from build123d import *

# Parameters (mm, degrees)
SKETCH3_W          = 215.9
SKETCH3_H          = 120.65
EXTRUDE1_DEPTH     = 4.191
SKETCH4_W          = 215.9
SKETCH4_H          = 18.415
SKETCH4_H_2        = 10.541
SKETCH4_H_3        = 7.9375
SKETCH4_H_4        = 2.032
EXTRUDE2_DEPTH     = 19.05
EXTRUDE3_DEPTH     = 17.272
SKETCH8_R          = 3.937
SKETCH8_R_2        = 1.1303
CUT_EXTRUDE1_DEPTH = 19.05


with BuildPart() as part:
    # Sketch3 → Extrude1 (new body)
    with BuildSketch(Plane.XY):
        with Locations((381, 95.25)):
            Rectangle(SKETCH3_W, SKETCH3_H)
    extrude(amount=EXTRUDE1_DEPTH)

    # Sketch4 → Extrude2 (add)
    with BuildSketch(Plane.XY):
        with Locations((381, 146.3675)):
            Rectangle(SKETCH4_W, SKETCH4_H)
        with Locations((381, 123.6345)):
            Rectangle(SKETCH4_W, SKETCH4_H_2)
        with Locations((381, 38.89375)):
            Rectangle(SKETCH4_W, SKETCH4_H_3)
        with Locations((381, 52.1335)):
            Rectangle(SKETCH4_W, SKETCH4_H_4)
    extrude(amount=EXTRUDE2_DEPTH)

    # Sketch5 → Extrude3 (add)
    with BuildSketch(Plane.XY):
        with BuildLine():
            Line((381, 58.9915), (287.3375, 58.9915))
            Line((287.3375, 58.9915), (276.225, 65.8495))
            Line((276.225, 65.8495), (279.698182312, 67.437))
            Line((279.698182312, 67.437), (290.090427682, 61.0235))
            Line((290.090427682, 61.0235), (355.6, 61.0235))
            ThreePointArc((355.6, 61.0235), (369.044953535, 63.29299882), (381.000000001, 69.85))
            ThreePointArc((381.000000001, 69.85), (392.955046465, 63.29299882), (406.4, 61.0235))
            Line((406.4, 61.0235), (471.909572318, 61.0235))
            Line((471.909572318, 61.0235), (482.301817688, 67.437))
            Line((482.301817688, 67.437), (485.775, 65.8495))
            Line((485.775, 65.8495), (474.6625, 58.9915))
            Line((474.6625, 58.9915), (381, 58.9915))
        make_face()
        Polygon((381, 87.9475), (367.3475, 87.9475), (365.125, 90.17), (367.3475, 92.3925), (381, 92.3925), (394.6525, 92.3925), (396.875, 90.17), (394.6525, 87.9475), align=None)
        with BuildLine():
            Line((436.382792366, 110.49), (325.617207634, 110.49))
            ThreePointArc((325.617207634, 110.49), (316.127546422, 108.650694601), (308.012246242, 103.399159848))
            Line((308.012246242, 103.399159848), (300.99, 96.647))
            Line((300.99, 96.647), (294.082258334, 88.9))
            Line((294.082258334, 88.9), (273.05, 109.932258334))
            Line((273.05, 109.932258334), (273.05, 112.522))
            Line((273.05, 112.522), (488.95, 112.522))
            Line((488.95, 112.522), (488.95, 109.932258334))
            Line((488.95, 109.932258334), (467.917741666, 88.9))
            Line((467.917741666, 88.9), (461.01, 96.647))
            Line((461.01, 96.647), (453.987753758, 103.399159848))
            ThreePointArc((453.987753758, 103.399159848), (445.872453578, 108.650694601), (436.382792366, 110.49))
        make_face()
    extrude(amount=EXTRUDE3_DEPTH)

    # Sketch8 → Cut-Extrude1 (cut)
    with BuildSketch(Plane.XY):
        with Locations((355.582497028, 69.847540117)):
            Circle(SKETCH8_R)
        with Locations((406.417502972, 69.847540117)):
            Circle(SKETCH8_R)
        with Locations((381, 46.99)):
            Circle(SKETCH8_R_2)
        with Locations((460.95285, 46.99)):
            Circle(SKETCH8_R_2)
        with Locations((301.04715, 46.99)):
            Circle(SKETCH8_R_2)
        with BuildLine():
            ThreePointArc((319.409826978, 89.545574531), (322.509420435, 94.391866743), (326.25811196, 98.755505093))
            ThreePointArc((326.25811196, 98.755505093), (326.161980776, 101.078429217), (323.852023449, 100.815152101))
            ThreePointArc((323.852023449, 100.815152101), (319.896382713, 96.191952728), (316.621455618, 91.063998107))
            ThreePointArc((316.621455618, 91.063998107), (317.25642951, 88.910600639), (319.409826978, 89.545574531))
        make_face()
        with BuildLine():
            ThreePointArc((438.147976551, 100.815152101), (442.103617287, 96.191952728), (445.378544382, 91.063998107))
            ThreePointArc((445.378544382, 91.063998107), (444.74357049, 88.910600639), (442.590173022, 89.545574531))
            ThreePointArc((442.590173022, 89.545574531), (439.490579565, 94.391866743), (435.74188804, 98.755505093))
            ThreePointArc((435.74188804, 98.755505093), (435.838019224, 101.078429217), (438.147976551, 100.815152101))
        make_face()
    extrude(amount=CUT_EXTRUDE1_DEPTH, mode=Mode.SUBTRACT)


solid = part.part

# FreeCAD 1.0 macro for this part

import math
import FreeCAD as App
import Part
import Sketcher

V = App.Vector
Q = App.Units.Quantity


def add_polygon(sketch, points):
    """Adds a closed chain of lines whose ends are joined by coincident constraints."""
    first, n = sketch.GeometryCount, len(points)
    for a, b in zip(points, points[1:] + points[:1]):
        sketch.addGeometry(Part.LineSegment(App.Vector(*a, 0), App.Vector(*b, 0)), False)
    for i in range(n):
        sketch.addConstraint(Sketcher.Constraint("Coincident", first + i, 2, first + (i + 1) % n, 1))

doc = App.newDocument("Part")
params = doc.addObject("Spreadsheet::Sheet", "Params")
for row, (alias, value) in enumerate([
    ("sketch1_width", "8.5 in"),
    ("sketch1_height", "4.75 in"),
    ("pad1_length", "0.165 in"),
    ("sketch2_width", "8.5 in"),
    ("sketch2_height", "0.08 in"),
    ("sketch2_height2", "0.725 in"),
    ("sketch2_height3", "0.415 in"),
    ("sketch2_height4", "0.3125 in"),
    ("pad2_length", "0.75 in"),
    ("sketch3_radius", "1 in"),
    ("sketch3_width", "8.5 in"),
    ("sketch3_width2", "7.375 in"),
    ("sketch3_width3", "1.075 in"),
    ("pad3_length", "0.68 in"),
    ("sketch4_diameter", "0.31 in"),
    ("sketch4_diameter2", "0.089 in"),
    ("sketch4_radius", "0.0625 in"),
    ("pocket1_length", "0.75 in"),
], start=1):
    params.set(f"A{row}", alias)
    params.set(f"B{row}", "=" + value)
    params.setAlias(f"B{row}", alias)

body = doc.addObject("PartDesign::Body", "Body")

sketch1 = body.newObject("Sketcher::SketchObject", "Sketch")
sketch1.AttachmentSupport = (doc.getObject("XY_Plane"), [""])
sketch1.MapMode = "FlatFace"
add_polygon(sketch1, [(273, 156), (273, 35), (489, 35), (489, 156)])
sketch1.addConstraint(Sketcher.Constraint("Vertical", 0))
sketch1.addConstraint(Sketcher.Constraint("Horizontal", 1))
sketch1.addConstraint(Sketcher.Constraint("Vertical", 2))
sketch1.addConstraint(Sketcher.Constraint("Horizontal", 3))
sketch1.addConstraint(Sketcher.Constraint("DistanceX", 1, 1, 1, 2, Q("8.5 in")))
sketch1.addConstraint(Sketcher.Constraint("DistanceY", 0, 2, 0, 1, Q("4.75 in")))
sketch1.addConstraint(Sketcher.Constraint("DistanceX", -1, 1, 0, 2, Q("10.75 in")))
sketch1.addConstraint(Sketcher.Constraint("DistanceY", -1, 1, 0, 2, Q("1.375 in")))
sketch1.setExpression("Constraints[8]", "Params.sketch1_width")
sketch1.setExpression("Constraints[9]", "Params.sketch1_height")
pad1 = body.newObject("PartDesign::Pad", "Pad")
pad1.Profile = sketch1
pad1.setExpression("Length", "Params.pad1_length")

sketch2 = body.newObject("Sketcher::SketchObject", "Sketch001")
sketch2.AttachmentSupport = (doc.getObject("XY_Plane"), [""])
sketch2.MapMode = "FlatFace"
add_polygon(sketch2, [(273.1, 155.6), (273.1, 137.2), (488.9, 137.2), (488.9, 155.6)])
add_polygon(sketch2, [(273.1, 128.9), (273.1, 118.4), (488.9, 118.4), (488.9, 128.9)])
add_polygon(sketch2, [(273.1, 42.9), (273.1, 34.9), (488.9, 34.9), (488.9, 42.9)])
add_polygon(sketch2, [(273.1, 53.1), (273.1, 51.1), (488.9, 51.1), (488.9, 53.1)])
sketch2.addConstraint(Sketcher.Constraint("Vertical", 0))
sketch2.addConstraint(Sketcher.Constraint("Horizontal", 1))
sketch2.addConstraint(Sketcher.Constraint("Vertical", 2))
sketch2.addConstraint(Sketcher.Constraint("Horizontal", 3))
sketch2.addConstraint(Sketcher.Constraint("Vertical", 4))
sketch2.addConstraint(Sketcher.Constraint("Horizontal", 5))
sketch2.addConstraint(Sketcher.Constraint("Vertical", 6))
sketch2.addConstraint(Sketcher.Constraint("Horizontal", 7))
sketch2.addConstraint(Sketcher.Constraint("Vertical", 8))
sketch2.addConstraint(Sketcher.Constraint("Horizontal", 9))
sketch2.addConstraint(Sketcher.Constraint("Vertical", 10))
sketch2.addConstraint(Sketcher.Constraint("Horizontal", 11))
sketch2.addConstraint(Sketcher.Constraint("Vertical", 12))
sketch2.addConstraint(Sketcher.Constraint("Horizontal", 13))
sketch2.addConstraint(Sketcher.Constraint("Vertical", 14))
sketch2.addConstraint(Sketcher.Constraint("Horizontal", 15))
sketch2.addConstraint(Sketcher.Constraint("Vertical", 3, 2, 4, 2))
sketch2.addConstraint(Sketcher.Constraint("Vertical", 2, 2, 5, 2))
sketch2.addConstraint(Sketcher.Constraint("Vertical", 7, 2, 8, 2))
sketch2.addConstraint(Sketcher.Constraint("Vertical", 6, 2, 9, 2))
sketch2.addConstraint(Sketcher.Constraint("Vertical", 11, 2, 12, 2))
sketch2.addConstraint(Sketcher.Constraint("Vertical", 10, 2, 13, 2))
sketch2.addConstraint(Sketcher.Constraint("DistanceX", 1, 1, 1, 2, Q("8.5 in")))
sketch2.addConstraint(Sketcher.Constraint("DistanceY", 12, 2, 12, 1, Q("0.08 in")))
sketch2.addConstraint(Sketcher.Constraint("DistanceY", -1, 1, 0, 2, Q("5.4 in")))
sketch2.addConstraint(Sketcher.Constraint("DistanceY", 8, 2, 7, 2, Q("3.7 in")))
sketch2.addConstraint(Sketcher.Constraint("DistanceY", 0, 2, 0, 1, Q("0.725 in")))
sketch2.addConstraint(Sketcher.Constraint("DistanceY", 4, 2, 4, 1, Q("0.415 in")))
sketch2.addConstraint(Sketcher.Constraint("DistanceY", 8, 2, 8, 1, Q("0.3125 in")))
sketch2.addConstraint(Sketcher.Constraint("DistanceX", -1, 1, 0, 2, Q("10.75 in")))
sketch2.addConstraint(Sketcher.Constraint("DistanceY", -1, 1, 4, 2, Q("4.66 in")))
sketch2.addConstraint(Sketcher.Constraint("DistanceY", 11, 2, 12, 2, Q("0.325 in")))
sketch2.setExpression("Constraints[38]", "Params.sketch2_width")
sketch2.setExpression("Constraints[39]", "Params.sketch2_height")
sketch2.setExpression("Constraints[42]", "Params.sketch2_height2")
sketch2.setExpression("Constraints[43]", "Params.sketch2_height3")
sketch2.setExpression("Constraints[44]", "Params.sketch2_height4")
pad2 = body.newObject("PartDesign::Pad", "Pad001")
pad2.Profile = sketch2
pad2.setExpression("Length", "Params.pad2_length")

sketch3 = body.newObject("Sketcher::SketchObject", "Sketch002")
sketch3.AttachmentSupport = (doc.getObject("XY_Plane"), [""])
sketch3.MapMode = "FlatFace"
sketch3.addGeometry(Part.LineSegment(V(276.2, 65.8, 0), V(287.3, 59, 0)), False)
sketch3.addGeometry(Part.LineSegment(V(287.3, 59, 0), V(474.7, 59, 0)), False)
sketch3.addGeometry(Part.LineSegment(V(474.7, 59, 0), V(485.8, 65.8, 0)), False)
sketch3.addGeometry(Part.LineSegment(V(485.8, 65.8, 0), V(482.3, 67.4, 0)), False)
sketch3.addGeometry(Part.LineSegment(V(482.3, 67.4, 0), V(471.9, 61, 0)), False)
sketch3.addGeometry(Part.LineSegment(V(471.9, 61, 0), V(406.4, 61, 0)), False)
sketch3.addGeometry(Part.ArcOfCircle(Part.Circle(V(406.4, 102, 0), V(0, 0, 1), 41), math.radians(-128), math.radians(-90)), False)
sketch3.addGeometry(Part.ArcOfCircle(Part.Circle(V(355.6, 102, 0), V(0, 0, 1), 41), math.radians(-90), math.radians(-52)), False)
sketch3.addGeometry(Part.LineSegment(V(355.6, 61, 0), V(290.1, 61, 0)), False)
sketch3.addGeometry(Part.LineSegment(V(290.1, 61, 0), V(279.7, 67.4, 0)), False)
sketch3.addGeometry(Part.LineSegment(V(279.7, 67.4, 0), V(276.2, 65.8, 0)), False)
add_polygon(sketch3, [(367.3, 87.9), (394.7, 87.9), (396.9, 90.2), (394.7, 92.4), (367.3, 92.4), (365.1, 90.2)])
sketch3.addGeometry(Part.LineSegment(V(325.6, 110.5, 0), V(436.4, 110.5, 0)), False)
sketch3.addGeometry(Part.ArcOfCircle(Part.Circle(V(436.4, 85.1, 0), V(0, 0, 1), 25.4), math.radians(46), math.radians(90)), False)
sketch3.addGeometry(Part.LineSegment(V(454, 103.4, 0), V(461, 96.6, 0)), False)
sketch3.addGeometry(Part.LineSegment(V(461, 96.6, 0), V(467.9, 88.9, 0)), False)
sketch3.addGeometry(Part.LineSegment(V(467.9, 88.9, 0), V(488.9, 109.9, 0)), False)
sketch3.addGeometry(Part.LineSegment(V(488.9, 109.9, 0), V(488.9, 112.5, 0)), False)
sketch3.addGeometry(Part.LineSegment(V(488.9, 112.5, 0), V(273.1, 112.5, 0)), False)
sketch3.addGeometry(Part.LineSegment(V(273.1, 112.5, 0), V(273.1, 109.9, 0)), False)
sketch3.addGeometry(Part.LineSegment(V(273.1, 109.9, 0), V(294.1, 88.9, 0)), False)
sketch3.addGeometry(Part.LineSegment(V(294.1, 88.9, 0), V(301, 96.6, 0)), False)
sketch3.addGeometry(Part.LineSegment(V(301, 96.6, 0), V(308, 103.4, 0)), False)
sketch3.addGeometry(Part.ArcOfCircle(Part.Circle(V(325.6, 85.1, 0), V(0, 0, 1), 25.4), math.radians(90), math.radians(134)), False)
sketch3.addConstraint(Sketcher.Constraint("Coincident", 0, 2, 1, 1))
sketch3.addConstraint(Sketcher.Constraint("Coincident", 1, 2, 2, 1))
sketch3.addConstraint(Sketcher.Constraint("Coincident", 2, 2, 3, 1))
sketch3.addConstraint(Sketcher.Constraint("Coincident", 3, 2, 4, 1))
sketch3.addConstraint(Sketcher.Constraint("Coincident", 4, 2, 5, 1))
sketch3.addConstraint(Sketcher.Constraint("Tangent", 5, 2, 6, 2))
sketch3.addConstraint(Sketcher.Constraint("Coincident", 6, 1, 7, 2))
sketch3.addConstraint(Sketcher.Constraint("Tangent", 7, 1, 8, 1))
sketch3.addConstraint(Sketcher.Constraint("Coincident", 8, 2, 9, 1))
sketch3.addConstraint(Sketcher.Constraint("Coincident", 9, 2, 10, 1))
sketch3.addConstraint(Sketcher.Constraint("Coincident", 10, 2, 0, 1))
sketch3.addConstraint(Sketcher.Constraint("Tangent", 17, 2, 18, 2))
sketch3.addConstraint(Sketcher.Constraint("Tangent", 18, 1, 19, 1))
sketch3.addConstraint(Sketcher.Constraint("Coincident", 19, 2, 20, 1))
sketch3.addConstraint(Sketcher.Constraint("Coincident", 20, 2, 21, 1))
sketch3.addConstraint(Sketcher.Constraint("Coincident", 21, 2, 22, 1))
sketch3.addConstraint(Sketcher.Constraint("Coincident", 22, 2, 23, 1))
sketch3.addConstraint(Sketcher.Constraint("Coincident", 23, 2, 24, 1))
sketch3.addConstraint(Sketcher.Constraint("Coincident", 24, 2, 25, 1))
sketch3.addConstraint(Sketcher.Constraint("Coincident", 25, 2, 26, 1))
sketch3.addConstraint(Sketcher.Constraint("Coincident", 26, 2, 27, 1))
sketch3.addConstraint(Sketcher.Constraint("Tangent", 27, 2, 28, 2))
sketch3.addConstraint(Sketcher.Constraint("Tangent", 28, 1, 17, 1))
sketch3.addConstraint(Sketcher.Constraint("Horizontal", 1))
sketch3.addConstraint(Sketcher.Constraint("Horizontal", 5))
sketch3.addConstraint(Sketcher.Constraint("Horizontal", 8))
sketch3.addConstraint(Sketcher.Constraint("Horizontal", 11))
sketch3.addConstraint(Sketcher.Constraint("Horizontal", 14))
sketch3.addConstraint(Sketcher.Constraint("Horizontal", 17))
sketch3.addConstraint(Sketcher.Constraint("Vertical", 22))
sketch3.addConstraint(Sketcher.Constraint("Horizontal", 23))
sketch3.addConstraint(Sketcher.Constraint("Vertical", 24))
sketch3.addConstraint(Sketcher.Constraint("Equal", 6, 7))
sketch3.addConstraint(Sketcher.Constraint("Equal", 18, 28))
sketch3.addConstraint(Sketcher.Constraint("Parallel", 2, 4))
sketch3.addConstraint(Sketcher.Constraint("Parallel", 0, 9))
sketch3.addConstraint(Sketcher.Constraint("Perpendicular", 12, 13))
sketch3.addConstraint(Sketcher.Constraint("Perpendicular", 13, 15))
sketch3.addConstraint(Sketcher.Constraint("Perpendicular", 15, 16))
sketch3.addConstraint(Sketcher.Constraint("Perpendicular", 16, 21))
sketch3.addConstraint(Sketcher.Constraint("Perpendicular", 21, 25))
sketch3.addConstraint(Sketcher.Constraint("Horizontal", 6, 3, 7, 3))
sketch3.addConstraint(Sketcher.Constraint("Horizontal", 3, 2, 9, 2))
sketch3.addConstraint(Sketcher.Constraint("Horizontal", 2, 2, 10, 2))
sketch3.addConstraint(Sketcher.Constraint("Horizontal", 12, 2, 15, 2))
sketch3.addConstraint(Sketcher.Constraint("Horizontal", 21, 2, 24, 2))
sketch3.addConstraint(Sketcher.Constraint("Horizontal", 20, 2, 25, 2))
sketch3.addConstraint(Sketcher.Constraint("Horizontal", 19, 2, 26, 2))
sketch3.addConstraint(Sketcher.Constraint("Horizontal", 18, 1, 27, 2))
sketch3.addConstraint(Sketcher.Constraint("Vertical", 11, 2, 13, 2))
sketch3.addConstraint(Sketcher.Constraint("Vertical", 14, 2, 16, 2))
sketch3.addConstraint(Sketcher.Constraint("Equal", 5, 8))
sketch3.addConstraint(Sketcher.Constraint("Equal", 0, 2))
sketch3.addConstraint(Sketcher.Constraint("Equal", 3, 10))
sketch3.addConstraint(Sketcher.Constraint("Equal", 20, 26))
sketch3.addConstraint(Sketcher.Constraint("Radius", 18, Q("1 in")))
sketch3.addConstraint(Sketcher.Constraint("DistanceX", 23, 2, 23, 1, Q("8.5 in")))
sketch3.addConstraint(Sketcher.Constraint("DistanceX", -1, 1, 6, 3, Q("16 in")))
sketch3.addConstraint(Sketcher.Constraint("DistanceX", -1, 1, 7, 3, Q("14 in")))
sketch3.addConstraint(Sketcher.Constraint("DistanceY", -1, 1, 20, 2, Q("3.5 in")))
sketch3.addConstraint(Sketcher.Constraint("DistanceY", 6, 1, 18, 3, Q("0.6 in")))
sketch3.addConstraint(Sketcher.Constraint("DistanceY", 6, 1, 12, 2, Q("0.8 in")))
sketch3.addConstraint(Sketcher.Constraint("DistanceX", 19, 2, 21, 2, Q("1.1 in")))
sketch3.addConstraint(Sketcher.Constraint("DistanceX", 1, 1, 1, 2, Q("7.375 in")))
sketch3.addConstraint(Sketcher.Constraint("DistanceX", 11, 1, 11, 2, Q("1.075 in")))
sketch3.addConstraint(Sketcher.Constraint("DistanceY", -1, 1, 18, 3, Q("3.35 in")))
sketch3.addConstraint(Sketcher.Constraint("DistanceX", -1, 1, 19, 2, Q("18.15 in")))
sketch3.addConstraint(Sketcher.Constraint("DistanceY", -1, 1, 22, 2, Q("4.43 in")))
sketch3.addConstraint(Sketcher.Constraint("DistanceY", 1, 2, 2, 2, Q("0.27 in")))
sketch3.addConstraint(Sketcher.Constraint("DistanceY", 1, 2, 4, 2, Q("0.08 in")))
sketch3.addConstraint(Sketcher.Constraint("DistanceY", 5, 2, 11, 2, Q("1.06 in")))
sketch3.addConstraint(Sketcher.Constraint("DistanceY", 3, 2, 19, 2, Q("1.15 in")))
sketch3.addConstraint(Sketcher.Constraint("DistanceX", -1, 1, 2, 2, Q("19.125 in")))
sketch3.addConstraint(Sketcher.Constraint("DistanceY", -1, 1, 3, 2, Q("2.655 in")))
sketch3.addConstraint(Sketcher.Constraint("DistanceX", -1, 1, 12, 2, Q("15.625 in")))
sketch3.addConstraint(Sketcher.Constraint("DistanceX", -1, 1, 15, 2, Q("14.375 in")))
sketch3.addConstraint(Sketcher.Constraint("DistanceY", 22, 1, 22, 2, Q("2.589742 mm")))
sketch3.addConstraint(Sketcher.Constraint("DistanceY", 18, 1, 21, 2, Q("6.533098 mm")))
sketch3.addConstraint(Sketcher.Constraint("Distance", 3, Q("3.818789 mm")))
sketch3.setExpression("Constraints[61]", "Params.sketch3_radius")
sketch3.setExpression("Constraints[62]", "Params.sketch3_width")
sketch3.setExpression("Constraints[69]", "Params.sketch3_width2")
sketch3.setExpression("Constraints[70]", "Params.sketch3_width3")
pad3 = body.newObject("PartDesign::Pad", "Pad002")
pad3.Profile = sketch3
pad3.setExpression("Length", "Params.pad3_length")

sketch4 = body.newObject("Sketcher::SketchObject", "Sketch003")
sketch4.AttachmentSupport = (doc.getObject("XY_Plane"), [""])
sketch4.MapMode = "FlatFace"
sketch4.addGeometry(Part.Circle(V(355.6, 69.8, 0), V(0, 0, 1), 3.9), False)
sketch4.addGeometry(Part.Circle(V(406.4, 69.8, 0), V(0, 0, 1), 3.9), False)
sketch4.addGeometry(Part.Circle(V(381, 47, 0), V(0, 0, 1), 1.1), False)
sketch4.addGeometry(Part.Circle(V(461, 47, 0), V(0, 0, 1), 1.1), False)
sketch4.addGeometry(Part.Circle(V(301, 47, 0), V(0, 0, 1), 1.1), False)
sketch4.addGeometry(Part.ArcOfCircle(Part.Circle(V(355.3, 70, 0), V(0, 0, 1), 40.9), math.radians(135.3), math.radians(151.43)), False)
sketch4.addGeometry(Part.ArcOfCircle(Part.Circle(V(325.1, 99.9, 0), V(0, 0, 1), 1.6), math.radians(-45), math.radians(144)), False)
sketch4.addGeometry(Part.ArcOfCircle(Part.Circle(V(355, 70.2, 0), V(0, 0, 1), 43.7), math.radians(135.46), math.radians(151.43)), False)
sketch4.addGeometry(Part.ArcOfCircle(Part.Circle(V(318, 90.3, 0), V(0, 0, 1), 1.6), math.radians(151), math.radians(331)), False)
sketch4.addGeometry(Part.ArcOfCircle(Part.Circle(V(407, 70.2, 0), V(0, 0, 1), 43.7), math.radians(28.57), math.radians(44.54)), False)
sketch4.addGeometry(Part.ArcOfCircle(Part.Circle(V(436.9, 99.9, 0), V(0, 0, 1), 1.6), math.radians(36), math.radians(225)), False)
sketch4.addGeometry(Part.ArcOfCircle(Part.Circle(V(406.7, 70, 0), V(0, 0, 1), 40.9), math.radians(28.57), math.radians(44.7)), False)
sketch4.addGeometry(Part.ArcOfCircle(Part.Circle(V(444, 90.3, 0), V(0, 0, 1), 1.6), math.radians(-151), math.radians(29)), False)
sketch4.addConstraint(Sketcher.Constraint("Tangent", 5, 1, 6, 1))
sketch4.addConstraint(Sketcher.Constraint("Coincident", 6, 2, 7, 1))
sketch4.addConstraint(Sketcher.Constraint("Tangent", 7, 2, 8, 1))
sketch4.addConstraint(Sketcher.Constraint("Tangent", 8, 2, 5, 2))
sketch4.addConstraint(Sketcher.Constraint("Coincident", 9, 2, 10, 1))
sketch4.addConstraint(Sketcher.Constraint("Tangent", 10, 2, 11, 2))
sketch4.addConstraint(Sketcher.Constraint("Tangent", 11, 1, 12, 1))
sketch4.addConstraint(Sketcher.Constraint("Tangent", 12, 2, 9, 1))
sketch4.addConstraint(Sketcher.Constraint("Equal", 0, 1))
sketch4.addConstraint(Sketcher.Constraint("Equal", 2, 3))
sketch4.addConstraint(Sketcher.Constraint("Equal", 3, 4))
sketch4.addConstraint(Sketcher.Constraint("Equal", 7, 9))
sketch4.addConstraint(Sketcher.Constraint("Equal", 6, 10))
sketch4.addConstraint(Sketcher.Constraint("Equal", 5, 11))
sketch4.addConstraint(Sketcher.Constraint("Equal", 8, 12))
sketch4.addConstraint(Sketcher.Constraint("Horizontal", 0, 3, 1, 3))
sketch4.addConstraint(Sketcher.Constraint("Horizontal", 2, 3, 3, 3))
sketch4.addConstraint(Sketcher.Constraint("Horizontal", 3, 3, 4, 3))
sketch4.addConstraint(Sketcher.Constraint("Horizontal", 7, 3, 9, 3))
sketch4.addConstraint(Sketcher.Constraint("Horizontal", 6, 3, 10, 3))
sketch4.addConstraint(Sketcher.Constraint("Horizontal", 5, 3, 11, 3))
sketch4.addConstraint(Sketcher.Constraint("Horizontal", 8, 3, 12, 3))
sketch4.addConstraint(Sketcher.Constraint("Diameter", 0, Q("0.31 in")))
sketch4.addConstraint(Sketcher.Constraint("Diameter", 2, Q("0.089 in")))
sketch4.addConstraint(Sketcher.Constraint("DistanceX", -1, 1, 2, 3, Q("15 in")))
sketch4.addConstraint(Sketcher.Constraint("Radius", 8, Q("0.0625 in")))
sketch4.addConstraint(Sketcher.Constraint("DistanceY", -1, 1, 2, 3, Q("1.85 in")))
sketch4.addConstraint(Sketcher.Constraint("Radius", 5, Q("40.913515 mm")))
sketch4.addConstraint(Sketcher.Constraint("Radius", 6, Q("1.587748 mm")))
sketch4.addConstraint(Sketcher.Constraint("Radius", 7, Q("43.685938 mm")))
sketch4.addConstraint(Sketcher.Constraint("DistanceX", 4, 3, 3, 3, Q("6.2955 in")))
sketch4.addConstraint(Sketcher.Constraint("DistanceY", -1, 1, 7, 2, Q("91.063998 mm")))
sketch4.addConstraint(Sketcher.Constraint("DistanceY", 9, 3, 11, 1, Q("19.374099 mm")))
sketch4.addConstraint(Sketcher.Constraint("DistanceY", -1, 1, 0, 3, Q("69.84754 mm")))
sketch4.addConstraint(Sketcher.Constraint("DistanceX", -1, 1, 3, 3, Q("460.95285 mm")))
sketch4.addConstraint(Sketcher.Constraint("DistanceX", -1, 1, 5, 3, Q("355.341189 mm")))
sketch4.addConstraint(Sketcher.Constraint("DistanceY", -1, 1, 6, 3, Q("99.872249 mm")))
sketch4.addConstraint(Sketcher.Constraint("DistanceX", -1, 1, 8, 3, Q("318.015641 mm")))
sketch4.addConstraint(Sketcher.Constraint("DistanceX", -1, 1, 11, 3, Q("406.658811 mm")))
sketch4.addConstraint(Sketcher.Constraint("DistanceX", 5, 3, 0, 3, Q("0.241308 mm")))
sketch4.addConstraint(Sketcher.Constraint("DistanceX", 6, 3, 1, 3, Q("81.28803 mm")))
sketch4.setExpression("Constraints[22]", "Params.sketch4_diameter")
sketch4.setExpression("Constraints[23]", "Params.sketch4_diameter2")
sketch4.setExpression("Constraints[25]", "Params.sketch4_radius")
pocket1 = body.newObject("PartDesign::Pocket", "Pocket")
pocket1.Profile = sketch4
pocket1.setExpression("Length", "Params.pocket1_length")
pocket1.Reversed = True

doc.recompute()
